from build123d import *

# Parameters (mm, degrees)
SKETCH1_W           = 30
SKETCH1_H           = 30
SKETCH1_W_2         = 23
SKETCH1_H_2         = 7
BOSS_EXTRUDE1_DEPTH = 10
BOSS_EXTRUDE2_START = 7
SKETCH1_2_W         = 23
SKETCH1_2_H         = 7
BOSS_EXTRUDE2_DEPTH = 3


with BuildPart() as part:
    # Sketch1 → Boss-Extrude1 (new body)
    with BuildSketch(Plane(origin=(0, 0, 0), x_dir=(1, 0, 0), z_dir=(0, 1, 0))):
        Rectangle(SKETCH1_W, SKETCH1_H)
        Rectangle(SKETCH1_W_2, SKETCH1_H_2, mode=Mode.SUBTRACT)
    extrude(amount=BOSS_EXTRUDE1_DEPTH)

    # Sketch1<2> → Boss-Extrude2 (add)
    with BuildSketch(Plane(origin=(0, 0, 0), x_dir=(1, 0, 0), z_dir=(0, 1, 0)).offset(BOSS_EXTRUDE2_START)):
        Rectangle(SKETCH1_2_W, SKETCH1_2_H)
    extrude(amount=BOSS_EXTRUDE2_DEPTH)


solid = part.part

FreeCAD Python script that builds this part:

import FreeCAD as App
import Part
import Sketcher
from FreeCAD import Vector
Q = App.Units.Quantity

doc = App.newDocument("Part")
body = doc.addObject("PartDesign::Body", "Body")

# Sketch on XZ plane
sketch1 = doc.addObject("Sketcher::SketchObject", "Sketch")
body.addObject(sketch1)
sketch1.AttachmentSupport = (doc.XZ_Plane, [""])
sketch1.MapMode = "FlatFace"
sketch1.addGeometry(Part.LineSegment(Vector(-15, -15, 0), Vector(-15, 15, 0)), False)
sketch1.addGeometry(Part.LineSegment(Vector(-15, 15, 0), Vector(15, 15, 0)), False)
sketch1.addGeometry(Part.LineSegment(Vector(15, 15, 0), Vector(15, -15, 0)), False)
sketch1.addGeometry(Part.LineSegment(Vector(15, -15, 0), Vector(-15, -15, 0)), False)
sketch1.addGeometry(Part.LineSegment(Vector(12, 4, 0), Vector(-12, 4, 0)), False)
sketch1.addGeometry(Part.LineSegment(Vector(-12, 4, 0), Vector(-12, -4, 0)), False)
sketch1.addGeometry(Part.LineSegment(Vector(-12, -4, 0), Vector(12, -4, 0)), False)
sketch1.addGeometry(Part.LineSegment(Vector(12, -4, 0), Vector(12, 4, 0)), False)
sketch1.addConstraint(Sketcher.Constraint("Coincident", 0, 2, 1, 1))
sketch1.addConstraint(Sketcher.Constraint("Coincident", 1, 2, 2, 1))
sketch1.addConstraint(Sketcher.Constraint("Coincident", 2, 2, 3, 1))
sketch1.addConstraint(Sketcher.Constraint("Coincident", 3, 2, 0, 1))
sketch1.addConstraint(Sketcher.Constraint("Coincident", 4, 2, 5, 1))
sketch1.addConstraint(Sketcher.Constraint("Coincident", 5, 2, 6, 1))
sketch1.addConstraint(Sketcher.Constraint("Coincident", 6, 2, 7, 1))
sketch1.addConstraint(Sketcher.Constraint("Coincident", 7, 2, 4, 1))
sketch1.addConstraint(Sketcher.Constraint("Vertical", 0))
sketch1.addConstraint(Sketcher.Constraint("Horizontal", 1))
sketch1.addConstraint(Sketcher.Constraint("Vertical", 2))
sketch1.addConstraint(Sketcher.Constraint("Horizontal", 3))
sketch1.addConstraint(Sketcher.Constraint("Horizontal", 4))
sketch1.addConstraint(Sketcher.Constraint("Vertical", 5))
sketch1.addConstraint(Sketcher.Constraint("Horizontal", 6))
sketch1.addConstraint(Sketcher.Constraint("Vertical", 7))
sketch1.addConstraint(Sketcher.Constraint("Symmetric", 0, 2, 2, 2, -1, 1))
sketch1.addConstraint(Sketcher.Constraint("Symmetric", 4, 2, 6, 2, -1, 1))
sketch1.addConstraint(Sketcher.Constraint("Equal", 3, 0))
sketch1.addConstraint(Sketcher.Constraint("DistanceX", 1, 1, 1, 2, Q("30 mm")))
sketch1.addConstraint(Sketcher.Constraint("DistanceX", 4, 2, 4, 1, Q("23 mm")))
sketch1.addConstraint(Sketcher.Constraint("DistanceY", 5, 2, 5, 1, Q("7 mm")))
pad1 = doc.addObject("PartDesign::Pad", "Pad")
body.addObject(pad1)
pad1.Profile = sketch1
pad1.Length = 10
pad1.Reversed = True

# Sketch on XZ plane
sketch2 = doc.addObject("Sketcher::SketchObject", "Sketch001")
body.addObject(sketch2)
sketch2.AttachmentSupport = (doc.XZ_Plane, [""])
sketch2.MapMode = "FlatFace"
sketch2.AttachmentOffset = App.Placement(Vector(0, 0, -7), App.Rotation())
sketch2.addGeometry(Part.LineSegment(Vector(-12, -4, 0), Vector(-12, 4, 0)), False)
sketch2.addGeometry(Part.LineSegment(Vector(-12, 4, 0), Vector(12, 4, 0)), False)
sketch2.addGeometry(Part.LineSegment(Vector(12, 4, 0), Vector(12, -4, 0)), False)
sketch2.addGeometry(Part.LineSegment(Vector(12, -4, 0), Vector(-12, -4, 0)), False)
sketch2.addConstraint(Sketcher.Constraint("Coincident", 0, 2, 1, 1))
sketch2.addConstraint(Sketcher.Constraint("Coincident", 1, 2, 2, 1))
sketch2.addConstraint(Sketcher.Constraint("Coincident", 2, 2, 3, 1))
sketch2.addConstraint(Sketcher.Constraint("Coincident", 3, 2, 0, 1))
sketch2.addConstraint(Sketcher.Constraint("Vertical", 0))
sketch2.addConstraint(Sketcher.Constraint("Horizontal", 1))
sketch2.addConstraint(Sketcher.Constraint("Vertical", 2))
sketch2.addConstraint(Sketcher.Constraint("Horizontal", 3))
sketch2.addConstraint(Sketcher.Constraint("Symmetric", 0, 2, 2, 2, -1, 1))
sketch2.addConstraint(Sketcher.Constraint("DistanceX", 1, 1, 1, 2, Q("23 mm")))
sketch2.addConstraint(Sketcher.Constraint("DistanceY", 0, 1, 0, 2, Q("7 mm")))
pad2 = doc.addObject("PartDesign::Pad", "Pad001")
body.addObject(pad2)
pad2.Profile = sketch2
pad2.Length = 3
pad2.Reversed = True

doc.recompute()
